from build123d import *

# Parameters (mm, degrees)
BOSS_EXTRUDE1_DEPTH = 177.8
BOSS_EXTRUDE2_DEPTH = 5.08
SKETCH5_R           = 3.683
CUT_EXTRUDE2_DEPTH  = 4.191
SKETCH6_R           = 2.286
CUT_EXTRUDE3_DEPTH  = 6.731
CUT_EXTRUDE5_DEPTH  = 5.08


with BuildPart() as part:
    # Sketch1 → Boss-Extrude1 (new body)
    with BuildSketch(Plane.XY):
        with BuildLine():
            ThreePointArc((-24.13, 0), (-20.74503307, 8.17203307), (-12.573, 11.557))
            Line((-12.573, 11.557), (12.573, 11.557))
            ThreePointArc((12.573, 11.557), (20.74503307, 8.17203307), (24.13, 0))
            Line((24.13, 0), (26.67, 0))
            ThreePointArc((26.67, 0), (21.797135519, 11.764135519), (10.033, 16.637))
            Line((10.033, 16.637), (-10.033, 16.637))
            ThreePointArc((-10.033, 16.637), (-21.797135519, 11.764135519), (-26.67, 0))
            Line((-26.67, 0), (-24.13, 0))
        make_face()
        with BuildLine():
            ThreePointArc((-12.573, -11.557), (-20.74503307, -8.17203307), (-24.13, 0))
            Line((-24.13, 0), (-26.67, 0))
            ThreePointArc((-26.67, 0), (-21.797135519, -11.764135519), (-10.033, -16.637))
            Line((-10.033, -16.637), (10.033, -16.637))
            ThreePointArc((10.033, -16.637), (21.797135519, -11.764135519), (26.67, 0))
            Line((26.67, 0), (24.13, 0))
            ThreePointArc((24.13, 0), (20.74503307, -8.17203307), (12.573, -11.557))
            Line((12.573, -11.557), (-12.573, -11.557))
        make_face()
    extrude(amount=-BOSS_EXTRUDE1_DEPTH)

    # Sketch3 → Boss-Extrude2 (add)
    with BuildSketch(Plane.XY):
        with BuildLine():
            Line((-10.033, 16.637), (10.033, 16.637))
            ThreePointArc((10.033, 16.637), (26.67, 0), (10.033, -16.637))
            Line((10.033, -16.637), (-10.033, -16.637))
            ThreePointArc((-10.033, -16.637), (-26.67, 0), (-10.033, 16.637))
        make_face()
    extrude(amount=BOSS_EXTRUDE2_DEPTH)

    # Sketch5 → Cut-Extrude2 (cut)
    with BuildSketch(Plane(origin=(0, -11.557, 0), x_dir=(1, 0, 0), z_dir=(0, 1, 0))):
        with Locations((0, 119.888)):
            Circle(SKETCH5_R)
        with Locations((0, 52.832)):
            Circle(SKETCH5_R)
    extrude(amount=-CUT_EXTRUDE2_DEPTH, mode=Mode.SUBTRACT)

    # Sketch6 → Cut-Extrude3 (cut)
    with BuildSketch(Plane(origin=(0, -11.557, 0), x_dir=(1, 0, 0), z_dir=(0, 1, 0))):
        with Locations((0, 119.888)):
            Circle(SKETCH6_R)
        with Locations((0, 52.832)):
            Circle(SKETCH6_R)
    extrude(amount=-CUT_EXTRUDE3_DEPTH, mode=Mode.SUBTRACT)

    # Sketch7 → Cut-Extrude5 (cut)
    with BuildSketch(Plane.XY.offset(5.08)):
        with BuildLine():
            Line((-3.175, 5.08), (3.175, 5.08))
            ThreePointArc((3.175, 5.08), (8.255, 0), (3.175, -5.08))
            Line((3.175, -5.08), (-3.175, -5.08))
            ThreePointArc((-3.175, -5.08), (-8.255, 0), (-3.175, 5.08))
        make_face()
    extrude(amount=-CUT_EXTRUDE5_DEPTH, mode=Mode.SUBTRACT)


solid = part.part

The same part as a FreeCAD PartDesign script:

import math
import FreeCAD as App
import Part
import Sketcher

V = App.Vector
Q = App.Units.Quantity

doc = App.newDocument("Part")
params = doc.addObject("Spreadsheet::Sheet", "Params")
for row, (alias, value) in enumerate([
    ("sketch1_radius", "0.655 in"),
    ("sketch1_radius2", "0.455 in"),
    ("sketch1_width", "0.79 in"),
    ("sketch1_width2", "0.99 in"),
    ("pad1_length", "7 in"),
    ("sketch2_radius", "0.655 in"),
    ("sketch2_width", "0.79 in"),
    ("pad2_length", "0.2 in"),
    ("sketch3_diameter", "0.29 in"),
    ("pocket1_length", "0.165 in"),
    ("sketch4_diameter", "0.18 in"),
    ("pocket2_length", "0.265 in"),
    ("sketch5_radius", "0.2 in"),
    ("sketch5_width", "0.25 in"),
    ("pocket3_length", "0.2 in"),
], start=1):
    params.set(f"A{row}", alias)
    params.set(f"B{row}", "=" + value)
    params.setAlias(f"B{row}", alias)

body = doc.addObject("PartDesign::Body", "Body")

# Sketch on XY plane
sketch1 = body.newObject("Sketcher::SketchObject", "Sketch")
sketch1.AttachmentSupport = (doc.getObject("XY_Plane"), [""])
sketch1.MapMode = "FlatFace"
sketch1.addGeometry([
    Part.ArcOfCircle(Part.Circle(V(10, 0, 0), V(0, 0, 1), 17), math.radians(0), math.radians(90)),  # 0
    Part.LineSegment(V(10, 17, 0), V(-10, 17, 0)),  # 1
    Part.ArcOfCircle(Part.Circle(V(-10, 0, 0), V(0, 0, 1), 17), math.radians(90), math.radians(180)),  # 2
    Part.ArcOfCircle(Part.Circle(V(-10, 0, 0), V(0, 0, 1), 17), math.radians(180), math.radians(270)),  # 3
    Part.LineSegment(V(-10, -17, 0), V(10, -17, 0)),  # 4
    Part.ArcOfCircle(Part.Circle(V(10, 0, 0), V(0, 0, 1), 17), math.radians(-90), math.radians(0)),  # 5
    Part.ArcOfCircle(Part.Circle(V(-13, 0, 0), V(0, 0, 1), 12), math.radians(90), math.radians(180)),  # 6
    Part.LineSegment(V(-13, 12, 0), V(13, 12, 0)),  # 7
    Part.ArcOfCircle(Part.Circle(V(13, 0, 0), V(0, 0, 1), 12), math.radians(0), math.radians(90)),  # 8
    Part.ArcOfCircle(Part.Circle(V(13, 0, 0), V(0, 0, 1), 12), math.radians(-90), math.radians(0)),  # 9
    Part.LineSegment(V(13, -12, 0), V(-13, -12, 0)),  # 10
    Part.ArcOfCircle(Part.Circle(V(-13, 0, 0), V(0, 0, 1), 12), math.radians(-180), math.radians(-90)),  # 11
], False)
sketch1.addConstraint([
    Sketcher.Constraint("Tangent", 0, 2, 1, 1),
    Sketcher.Constraint("Tangent", 1, 2, 2, 1),
    Sketcher.Constraint("Tangent", 2, 2, 3, 1),
    Sketcher.Constraint("Tangent", 3, 2, 4, 1),
    Sketcher.Constraint("Tangent", 4, 2, 5, 1),
    Sketcher.Constraint("Tangent", 5, 2, 0, 1),
    Sketcher.Constraint("Tangent", 6, 1, 7, 1),
    Sketcher.Constraint("Tangent", 7, 2, 8, 2),
    Sketcher.Constraint("Tangent", 8, 1, 9, 2),
    Sketcher.Constraint("Tangent", 9, 1, 10, 1),
    Sketcher.Constraint("Tangent", 10, 2, 11, 2),
    Sketcher.Constraint("Tangent", 11, 1, 6, 2),
    Sketcher.Constraint("Horizontal", 1),
    Sketcher.Constraint("Horizontal", 4),
    Sketcher.Constraint("Horizontal", 7),
    Sketcher.Constraint("Horizontal", 10),
    Sketcher.Constraint("Equal", 0, 2),
    Sketcher.Constraint("Equal", 2, 3),
    Sketcher.Constraint("Equal", 6, 8),
    Sketcher.Constraint("Equal", 8, 9),
    Sketcher.Constraint("Symmetric", 0, 3, 2, 3, -1, 1),
    Sketcher.Constraint("Symmetric", 6, 3, 8, 3, -1, 1),
    Sketcher.Constraint("PointOnObject", 2, 2, -1),
    Sketcher.Constraint("PointOnObject", 5, 2, -1),
    Sketcher.Constraint("PointOnObject", 8, 1, -1),
    Sketcher.Constraint("PointOnObject", 11, 1, -1),
    Sketcher.Constraint("Radius", 0, Q("0.655 in")),
    Sketcher.Constraint("Radius", 6, Q("0.455 in")),
    Sketcher.Constraint("DistanceX", 1, 2, 1, 1, Q("0.79 in")),
    Sketcher.Constraint("DistanceX", 7, 1, 7, 2, Q("0.99 in")),
])
sketch1.setExpression("Constraints[26]", "Params.sketch1_radius")
sketch1.setExpression("Constraints[27]", "Params.sketch1_radius2")
sketch1.setExpression("Constraints[28]", "Params.sketch1_width")
sketch1.setExpression("Constraints[29]", "Params.sketch1_width2")
pad1 = body.newObject("PartDesign::Pad", "Pad")
pad1.Profile = sketch1
pad1.setExpression("Length", "Params.pad1_length")
pad1.Reversed = True

# Sketch on XY plane
sketch2 = body.newObject("Sketcher::SketchObject", "Sketch001")
sketch2.AttachmentSupport = (doc.getObject("XY_Plane"), [""])
sketch2.MapMode = "FlatFace"
sketch2.addGeometry([
    Part.LineSegment(V(10, 17, 0), V(-10, 17, 0)),
    Part.ArcOfCircle(Part.Circle(V(-10, 0, 0), V(0, 0, 1), 17), math.radians(90), math.radians(270)),
    Part.LineSegment(V(-10, -17, 0), V(10, -17, 0)),
    Part.ArcOfCircle(Part.Circle(V(10, 0, 0), V(0, 0, 1), 17), math.radians(-90), math.radians(90)),
], False)
sketch2.addConstraint([
    Sketcher.Constraint("Tangent", 0, 2, 1, 1),
    Sketcher.Constraint("Tangent", 1, 2, 2, 1),
    Sketcher.Constraint("Tangent", 2, 2, 3, 1),
    Sketcher.Constraint("Tangent", 3, 2, 0, 1),
    Sketcher.Constraint("Horizontal", 0),
    Sketcher.Constraint("Horizontal", 2),
    Sketcher.Constraint("Symmetric", 1, 3, 3, 3, -1, 1),
    Sketcher.Constraint("Radius", 1, Q("0.655 in")),
    Sketcher.Constraint("DistanceX", 0, 2, 0, 1, Q("0.79 in")),
])
sketch2.setExpression("Constraints[7]", "Params.sketch2_radius")
sketch2.setExpression("Constraints[8]", "Params.sketch2_width")
pad2 = body.newObject("PartDesign::Pad", "Pad001")
pad2.Profile = sketch2
pad2.setExpression("Length", "Params.pad2_length")

# Sketch on XZ plane
sketch3 = body.newObject("Sketcher::SketchObject", "Sketch002")
sketch3.AttachmentSupport = (doc.getObject("XZ_Plane"), [""])
sketch3.MapMode = "FlatFace"
sketch3.AttachmentOffset = App.Placement(V(0, 0, 0.455 * 25.4), App.Rotation())
sketch3.addGeometry([
    Part.Circle(V(0, -119.9, 0), V(0, 0, 1), 3.7),
    Part.Circle(V(0, -52.8, 0), V(0, 0, 1), 3.7),
], False)
sketch3.addConstraint([
    Sketcher.Constraint("Equal", 0, 1),
    Sketcher.Constraint("PointOnObject", 0, 3, -2),
    Sketcher.Constraint("PointOnObject", 1, 3, -2),
    Sketcher.Constraint("Diameter", 0, Q("0.29 in")),
    Sketcher.Constraint("DistanceY", 0, 3, -1, 1, Q("4.72 in")),
    Sketcher.Constraint("DistanceY", 1, 3, -1, 1, Q("2.08 in")),
])
sketch3.setExpression("Constraints[3]", "Params.sketch3_diameter")
pocket1 = body.newObject("PartDesign::Pocket", "Pocket")
pocket1.Profile = sketch3
pocket1.setExpression("Length", "Params.pocket1_length")
pocket1.Reversed = True

# Sketch on XZ plane
sketch4 = body.newObject("Sketcher::SketchObject", "Sketch003")
sketch4.AttachmentSupport = (doc.getObject("XZ_Plane"), [""])
sketch4.MapMode = "FlatFace"
sketch4.AttachmentOffset = App.Placement(V(0, 0, 0.455 * 25.4), App.Rotation())
sketch4.addGeometry([
    Part.Circle(V(0, -119.9, 0), V(0, 0, 1), 2.3),
    Part.Circle(V(0, -52.8, 0), V(0, 0, 1), 2.3),
], False)
sketch4.addConstraint([
    Sketcher.Constraint("Equal", 0, 1),
    Sketcher.Constraint("PointOnObject", 0, 3, -2),
    Sketcher.Constraint("PointOnObject", 1, 3, -2),
    Sketcher.Constraint("Diameter", 0, Q("0.18 in")),
    Sketcher.Constraint("DistanceY", 0, 3, -1, 1, Q("4.72 in")),
    Sketcher.Constraint("DistanceY", 1, 3, -1, 1, Q("2.08 in")),
])
sketch4.setExpression("Constraints[3]", "Params.sketch4_diameter")
pocket2 = body.newObject("PartDesign::Pocket", "Pocket001")
pocket2.Profile = sketch4
pocket2.setExpression("Length", "Params.pocket2_length")
pocket2.Reversed = True

# Sketch on XY plane
sketch5 = body.newObject("Sketcher::SketchObject", "Sketch004")
sketch5.AttachmentSupport = (doc.getObject("XY_Plane"), [""])
sketch5.MapMode = "FlatFace"
sketch5.AttachmentOffset = App.Placement(V(0, 0, 0.2 * 25.4), App.Rotation())
sketch5.addGeometry([
    Part.LineSegment(V(3, 5, 0), V(-3, 5, 0)),
    Part.ArcOfCircle(Part.Circle(V(-3, 0, 0), V(0, 0, 1), 5), math.radians(90), math.radians(270)),
    Part.LineSegment(V(-3, -5, 0), V(3, -5, 0)),
    Part.ArcOfCircle(Part.Circle(V(3, 0, 0), V(0, 0, 1), 5), math.radians(-90), math.radians(90)),
], False)
sketch5.addConstraint([
    Sketcher.Constraint("Tangent", 0, 2, 1, 1),
    Sketcher.Constraint("Tangent", 1, 2, 2, 1),
    Sketcher.Constraint("Tangent", 2, 2, 3, 1),
    Sketcher.Constraint("Tangent", 3, 2, 0, 1),
    Sketcher.Constraint("Horizontal", 0),
    Sketcher.Constraint("Horizontal", 2),
    Sketcher.Constraint("Symmetric", 1, 3, 3, 3, -1, 1),
    Sketcher.Constraint("Radius", 1, Q("0.2 in")),
    Sketcher.Constraint("DistanceX", 0, 2, 0, 1, Q("0.25 in")),
])
sketch5.setExpression("Constraints[7]", "Params.sketch5_radius")
sketch5.setExpression("Constraints[8]", "Params.sketch5_width")
pocket3 = body.newObject("PartDesign::Pocket", "Pocket002")
pocket3.Profile = sketch5
pocket3.setExpression("Length", "Params.pocket3_length")

doc.recompute()
